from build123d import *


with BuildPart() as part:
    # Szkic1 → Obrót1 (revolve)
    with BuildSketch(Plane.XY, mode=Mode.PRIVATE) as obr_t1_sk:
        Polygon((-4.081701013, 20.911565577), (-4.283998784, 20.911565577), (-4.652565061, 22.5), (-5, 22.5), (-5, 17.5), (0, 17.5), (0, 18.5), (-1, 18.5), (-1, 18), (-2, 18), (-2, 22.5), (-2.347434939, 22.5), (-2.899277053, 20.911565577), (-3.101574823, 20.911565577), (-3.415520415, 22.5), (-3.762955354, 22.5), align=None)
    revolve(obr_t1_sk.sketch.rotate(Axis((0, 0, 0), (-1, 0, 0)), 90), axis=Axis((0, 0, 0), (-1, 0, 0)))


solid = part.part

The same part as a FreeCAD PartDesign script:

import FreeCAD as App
import Part
import Sketcher

V = App.Vector


def add_polygon(sketch, points):
    """Adds a closed chain of lines whose ends are joined by coincident constraints."""
    first, n = sketch.GeometryCount, len(points)
    for a, b in zip(points, points[1:] + points[:1]):
        sketch.addGeometry(Part.LineSegment(App.Vector(*a, 0), App.Vector(*b, 0)), False)
    for i in range(n):
        sketch.addConstraint(Sketcher.Constraint("Coincident", first + i, 2, first + (i + 1) % n, 1))

doc = App.newDocument("Part")
body = doc.addObject("PartDesign::Body", "Body")

sketch1 = body.newObject("Sketcher::SketchObject", "Sketch")
sketch1.AttachmentSupport = (doc.getObject("XY_Plane"), [""])
sketch1.MapMode = "FlatFace"
add_polygon(sketch1, [(-4.08, 20.91), (-4.28, 20.91), (-4.65, 22.5), (-5, 22.5), (-5, 17.5), (0, 17.5), (0, 18.5), (-1, 18.5), (-1, 18), (-2, 18), (-2, 22.5), (-2.35, 22.5), (-2.9, 20.91), (-3.1, 20.91), (-3.42, 22.5), (-3.76, 22.5)])
sketch1.addConstraint(Sketcher.Constraint("Horizontal", 0))
sketch1.addConstraint(Sketcher.Constraint("Horizontal", 2))
sketch1.addConstraint(Sketcher.Constraint("Vertical", 3))
sketch1.addConstraint(Sketcher.Constraint("Horizontal", 4))
sketch1.addConstraint(Sketcher.Constraint("Vertical", 5))
sketch1.addConstraint(Sketcher.Constraint("Horizontal", 6))
sketch1.addConstraint(Sketcher.Constraint("Vertical", 7))
sketch1.addConstraint(Sketcher.Constraint("Horizontal", 8))
sketch1.addConstraint(Sketcher.Constraint("Vertical", 9))
sketch1.addConstraint(Sketcher.Constraint("Horizontal", 10))
sketch1.addConstraint(Sketcher.Constraint("Horizontal", 12))
sketch1.addConstraint(Sketcher.Constraint("Horizontal", 14))
sketch1.addConstraint(Sketcher.Constraint("PointOnObject", 4, 2, -2))
sketch1.addConstraint(Sketcher.Constraint("Horizontal", 2, 2, 9, 2))
sketch1.addConstraint(Sketcher.Constraint("Horizontal", 0, 2, 11, 2))
sketch1.addConstraint(Sketcher.Constraint("Horizontal", 10, 2, 13, 2))
sketch1.addConstraint(Sketcher.Constraint("Equal", 6, 8))
sketch1.addConstraint(Sketcher.Constraint("Equal", 2, 10))
sketch1.addConstraint(Sketcher.Constraint("Equal", 0, 12))
sketch1.addConstraint(Sketcher.Constraint("Equal", 10, 14))
sketch1.addConstraint(Sketcher.Constraint("Equal", 4, 3))
sketch1.addConstraint(Sketcher.Constraint("Equal", 8, 5))
sketch1.addConstraint(Sketcher.Constraint("DistanceX", 4, 1, 4, 2, 5.0))
sketch1.addConstraint(Sketcher.Constraint("DistanceX", 6, 2, 6, 1, 1.0))
sketch1.addConstraint(Sketcher.Constraint("DistanceY", 7, 2, 7, 1, 0.5))
sketch1.addConstraint(Sketcher.Constraint("DistanceY", -1, 1, 7, 2, 18.0))
sketch1.addConstraint(Sketcher.Constraint("DistanceX", 0, 2, -1, 1, 4.283999))
sketch1.addConstraint(Sketcher.Constraint("Distance", 15, 1.6201))
sketch1.addConstraint(Sketcher.Constraint("DistanceX", 15, 2, -1, 1, 4.081701))
sketch1.addConstraint(Sketcher.Constraint("DistanceX", 2, 2, 2, 1, 0.347435))
sketch1.addConstraint(Sketcher.Constraint("DistanceX", 13, 2, -1, 1, 3.41552))
sketch1.addConstraint(Sketcher.Constraint("DistanceX", 0, 2, 11, 2, 1.384722))
revolution = body.newObject("PartDesign::Revolution", "Revolution")
revolution.Profile = sketch1
revolution.ReferenceAxis = (sketch1, ["H_Axis"])
revolution.Angle = 360

doc.recompute()
